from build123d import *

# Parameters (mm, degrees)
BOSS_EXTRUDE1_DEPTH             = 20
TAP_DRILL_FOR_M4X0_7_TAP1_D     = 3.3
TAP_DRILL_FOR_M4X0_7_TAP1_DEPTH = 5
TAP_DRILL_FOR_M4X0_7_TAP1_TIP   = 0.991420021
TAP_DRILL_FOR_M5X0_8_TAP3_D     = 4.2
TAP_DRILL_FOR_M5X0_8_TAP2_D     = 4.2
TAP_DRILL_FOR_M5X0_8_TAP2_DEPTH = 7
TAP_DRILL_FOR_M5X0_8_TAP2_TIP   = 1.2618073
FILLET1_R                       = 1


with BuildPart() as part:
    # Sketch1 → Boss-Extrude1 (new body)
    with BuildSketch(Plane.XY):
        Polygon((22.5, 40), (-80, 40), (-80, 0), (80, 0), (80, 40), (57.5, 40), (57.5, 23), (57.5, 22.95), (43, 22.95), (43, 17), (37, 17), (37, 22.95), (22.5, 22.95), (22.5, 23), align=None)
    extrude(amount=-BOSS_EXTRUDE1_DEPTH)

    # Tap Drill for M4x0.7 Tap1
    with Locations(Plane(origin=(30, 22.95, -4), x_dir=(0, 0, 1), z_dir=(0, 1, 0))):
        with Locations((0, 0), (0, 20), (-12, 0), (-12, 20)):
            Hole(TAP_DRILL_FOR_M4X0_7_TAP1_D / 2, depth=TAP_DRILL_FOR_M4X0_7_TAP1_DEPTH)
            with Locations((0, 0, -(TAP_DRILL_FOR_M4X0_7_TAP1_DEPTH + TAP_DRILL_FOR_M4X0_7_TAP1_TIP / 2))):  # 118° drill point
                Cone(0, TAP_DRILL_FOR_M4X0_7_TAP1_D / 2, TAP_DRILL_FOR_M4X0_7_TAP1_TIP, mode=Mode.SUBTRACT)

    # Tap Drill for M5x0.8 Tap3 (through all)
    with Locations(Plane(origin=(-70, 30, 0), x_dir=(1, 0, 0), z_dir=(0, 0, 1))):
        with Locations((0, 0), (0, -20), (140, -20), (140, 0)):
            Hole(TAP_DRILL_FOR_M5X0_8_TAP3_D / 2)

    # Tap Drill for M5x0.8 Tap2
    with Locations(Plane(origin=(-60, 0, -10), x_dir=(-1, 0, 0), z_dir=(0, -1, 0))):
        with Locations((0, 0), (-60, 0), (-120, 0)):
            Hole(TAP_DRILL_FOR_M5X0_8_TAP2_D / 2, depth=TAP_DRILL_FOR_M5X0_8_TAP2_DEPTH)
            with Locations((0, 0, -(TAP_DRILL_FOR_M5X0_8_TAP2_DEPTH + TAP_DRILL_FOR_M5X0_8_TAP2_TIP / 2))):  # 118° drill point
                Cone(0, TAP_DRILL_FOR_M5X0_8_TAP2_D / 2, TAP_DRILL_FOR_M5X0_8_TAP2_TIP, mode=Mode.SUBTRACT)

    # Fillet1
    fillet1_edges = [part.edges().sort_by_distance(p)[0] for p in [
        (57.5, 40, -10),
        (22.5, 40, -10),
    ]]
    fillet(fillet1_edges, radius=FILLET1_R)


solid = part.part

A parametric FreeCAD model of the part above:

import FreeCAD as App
import Part
import Sketcher


def edges_at(feature, points):
    """Names of the edges that pass closest to the given points."""
    edges = feature.Shape.Edges
    near = lambda p: min(range(len(edges)), key=lambda i: edges[i].distToShape(Part.Vertex(*p))[0])
    return sorted({f"Edge{near(p) + 1}" for p in points})


def add_polygon(sketch, points):
    """Adds a closed chain of lines whose ends are joined by coincident constraints."""
    first, n = sketch.GeometryCount, len(points)
    for a, b in zip(points, points[1:] + points[:1]):
        sketch.addGeometry(Part.LineSegment(App.Vector(*a, 0), App.Vector(*b, 0)), False)
    for i in range(n):
        sketch.addConstraint(Sketcher.Constraint("Coincident", first + i, 2, first + (i + 1) % n, 1))

doc = App.newDocument("Part")
params = doc.addObject("Spreadsheet::Sheet", "Params")
for row, (alias, value) in enumerate([
    ("sketch1_width", "160 mm"),
    ("sketch1_width2", "6 mm"),
    ("sketch1_height", "40 mm"),
    ("sketch1_width3", "102.5 mm"),
    ("sketch1_width4", "22.5 mm"),
    ("pad1_length", "20 mm"),
    ("sketch2_diameter", "3.3 mm"),
    ("hole_diameter", "3.3 mm"),
    ("hole_depth", "5 mm"),
    ("sketch3_diameter", "4.2 mm"),
    ("hole2_diameter", "4.2 mm"),
    ("sketch4_diameter", "4.2 mm"),
    ("hole3_diameter", "4.2 mm"),
    ("hole3_depth", "7 mm"),
    ("fillet_radius", "1 mm"),
], start=1):
    params.set(f"A{row}", alias)
    params.set(f"B{row}", "=" + value)
    params.setAlias(f"B{row}", alias)

body = doc.addObject("PartDesign::Body", "Body")

sketch1 = body.newObject("Sketcher::SketchObject", "Sketch")
sketch1.AttachmentSupport = (doc.getObject("XY_Plane"), [""])
sketch1.MapMode = "FlatFace"
add_polygon(sketch1, [(22, 40), (-80, 40), (-80, 0), (80, 0), (80, 40), (58, 40), (58, 23), (43, 23), (43, 17), (37, 17), (37, 23), (22, 23)])
sketch1.addConstraint(Sketcher.Constraint("Horizontal", 0))
sketch1.addConstraint(Sketcher.Constraint("Vertical", 1))
sketch1.addConstraint(Sketcher.Constraint("Horizontal", 2))
sketch1.addConstraint(Sketcher.Constraint("Vertical", 3))
sketch1.addConstraint(Sketcher.Constraint("Horizontal", 4))
sketch1.addConstraint(Sketcher.Constraint("Vertical", 5))
sketch1.addConstraint(Sketcher.Constraint("Horizontal", 6))
sketch1.addConstraint(Sketcher.Constraint("Vertical", 7))
sketch1.addConstraint(Sketcher.Constraint("Horizontal", 8))
sketch1.addConstraint(Sketcher.Constraint("Vertical", 9))
sketch1.addConstraint(Sketcher.Constraint("Horizontal", 10))
sketch1.addConstraint(Sketcher.Constraint("Vertical", 11))
sketch1.addConstraint(Sketcher.Constraint("Symmetric", 1, 2, 2, 2, -1, 1))
sketch1.addConstraint(Sketcher.Constraint("Horizontal", 0, 2, 3, 2))
sketch1.addConstraint(Sketcher.Constraint("Horizontal", 6, 2, 9, 2))
sketch1.addConstraint(Sketcher.Constraint("Equal", 6, 10))
sketch1.addConstraint(Sketcher.Constraint("DistanceX", 2, 1, 2, 2, 160.0))
sketch1.addConstraint(Sketcher.Constraint("DistanceX", 8, 2, 8, 1, 6.0))
sketch1.addConstraint(Sketcher.Constraint("DistanceY", 1, 2, 1, 1, 40.0))
sketch1.addConstraint(Sketcher.Constraint("DistanceX", 0, 2, 0, 1, 102.5))
sketch1.addConstraint(Sketcher.Constraint("DistanceX", 4, 2, 4, 1, 22.5))
sketch1.addConstraint(Sketcher.Constraint("DistanceY", -1, 1, 7, 2, 17.0))
sketch1.addConstraint(Sketcher.Constraint("DistanceY", 5, 2, 5, 1, 17.05))
sketch1.setExpression("Constraints[28]", "Params.sketch1_width")
sketch1.setExpression("Constraints[29]", "Params.sketch1_width2")
sketch1.setExpression("Constraints[30]", "Params.sketch1_height")
sketch1.setExpression("Constraints[31]", "Params.sketch1_width3")
sketch1.setExpression("Constraints[32]", "Params.sketch1_width4")
pad1 = body.newObject("PartDesign::Pad", "Pad")
pad1.Profile = sketch1
pad1.setExpression("Length", "Params.pad1_length")
pad1.Reversed = True

sketch2 = body.newObject("Sketcher::SketchObject", "Sketch001")
sketch2.AttachmentSupport = (doc.getObject("XZ_Plane"), [""])
sketch2.MapMode = "FlatFace"
sketch2.AttachmentOffset = App.Placement(App.Vector(0, 0, -22.95), App.Rotation())
sketch2.addGeometry(Part.Circle(App.Vector(30, -4, 0), App.Vector(0, 0, 1), 1.6), False)
sketch2.addGeometry(Part.Circle(App.Vector(50, -4, 0), App.Vector(0, 0, 1), 1.6), False)
sketch2.addGeometry(Part.Circle(App.Vector(30, -16, 0), App.Vector(0, 0, 1), 1.6), False)
sketch2.addGeometry(Part.Circle(App.Vector(50, -16, 0), App.Vector(0, 0, 1), 1.6), False)
sketch2.addConstraint(Sketcher.Constraint("Equal", 0, 1))
sketch2.addConstraint(Sketcher.Constraint("Equal", 1, 2))
sketch2.addConstraint(Sketcher.Constraint("Equal", 2, 3))
sketch2.addConstraint(Sketcher.Constraint("Horizontal", 0, 3, 1, 3))
sketch2.addConstraint(Sketcher.Constraint("Horizontal", 2, 3, 3, 3))
sketch2.addConstraint(Sketcher.Constraint("Vertical", 0, 3, 2, 3))
sketch2.addConstraint(Sketcher.Constraint("Vertical", 1, 3, 3, 3))
sketch2.addConstraint(Sketcher.Constraint("Diameter", 0, 3.3))
sketch2.addConstraint(Sketcher.Constraint("DistanceX", -1, 1, 0, 3, 30.0))
sketch2.addConstraint(Sketcher.Constraint("DistanceY", 0, 3, -1, 1, 4.0))
sketch2.addConstraint(Sketcher.Constraint("DistanceX", -1, 1, 1, 3, 50.0))
sketch2.addConstraint(Sketcher.Constraint("DistanceY", 2, 3, -1, 1, 16.0))
sketch2.setExpression("Constraints[7]", "Params.sketch2_diameter")
doc.recompute()
hole = body.newObject("PartDesign::Hole", "Hole")
hole.Profile = sketch2
hole.ThreadType = "None"
hole.setExpression("Diameter", "Params.hole_diameter")
hole.DepthType = "Dimension"
hole.setExpression("Depth", "Params.hole_depth")
hole.DrillPoint = "Angled"
hole.DrillPointAngle = 118
hole.Reversed = True

sketch3 = body.newObject("Sketcher::SketchObject", "Sketch002")
sketch3.AttachmentSupport = (doc.getObject("XY_Plane"), [""])
sketch3.MapMode = "FlatFace"
sketch3.addGeometry(Part.Circle(App.Vector(-70, 30, 0), App.Vector(0, 0, 1), 2.1), False)
sketch3.addGeometry(Part.Circle(App.Vector(-70, 10, 0), App.Vector(0, 0, 1), 2.1), False)
sketch3.addGeometry(Part.Circle(App.Vector(70, 10, 0), App.Vector(0, 0, 1), 2.1), False)
sketch3.addGeometry(Part.Circle(App.Vector(70, 30, 0), App.Vector(0, 0, 1), 2.1), False)
sketch3.addConstraint(Sketcher.Constraint("Equal", 0, 1))
sketch3.addConstraint(Sketcher.Constraint("Equal", 1, 2))
sketch3.addConstraint(Sketcher.Constraint("Equal", 2, 3))
sketch3.addConstraint(Sketcher.Constraint("Symmetric", 1, 3, 2, 3, -2))
sketch3.addConstraint(Sketcher.Constraint("Symmetric", 0, 3, 3, 3, -2))
sketch3.addConstraint(Sketcher.Constraint("Vertical", 0, 3, 1, 3))
sketch3.addConstraint(Sketcher.Constraint("Diameter", 0, 4.2))
sketch3.addConstraint(Sketcher.Constraint("DistanceX", 0, 3, -1, 1, 70.0))
sketch3.addConstraint(Sketcher.Constraint("DistanceY", -1, 1, 0, 3, 30.0))
sketch3.addConstraint(Sketcher.Constraint("DistanceY", -1, 1, 1, 3, 10.0))
sketch3.setExpression("Constraints[6]", "Params.sketch3_diameter")
doc.recompute()
hole2 = body.newObject("PartDesign::Hole", "Hole001")
hole2.Profile = sketch3
hole2.ThreadType = "None"
hole2.setExpression("Diameter", "Params.hole2_diameter")
hole2.DepthType = "ThroughAll"

sketch4 = body.newObject("Sketcher::SketchObject", "Sketch003")
sketch4.AttachmentSupport = (doc.getObject("XZ_Plane"), [""])
sketch4.MapMode = "FlatFace"
sketch4.addGeometry(Part.Circle(App.Vector(-60, -10, 0), App.Vector(0, 0, 1), 2.1), False)
sketch4.addGeometry(Part.Circle(App.Vector(0, -10, 0), App.Vector(0, 0, 1), 2.1), False)
sketch4.addGeometry(Part.Circle(App.Vector(60, -10, 0), App.Vector(0, 0, 1), 2.1), False)
sketch4.addConstraint(Sketcher.Constraint("Equal", 0, 1))
sketch4.addConstraint(Sketcher.Constraint("Equal", 1, 2))
sketch4.addConstraint(Sketcher.Constraint("Symmetric", 0, 3, 2, 3, -2))
sketch4.addConstraint(Sketcher.Constraint("PointOnObject", 1, 3, -2))
sketch4.addConstraint(Sketcher.Constraint("Horizontal", 0, 3, 1, 3))
sketch4.addConstraint(Sketcher.Constraint("Diameter", 0, 4.2))
sketch4.addConstraint(Sketcher.Constraint("DistanceX", 0, 3, -1, 1, 60.0))
sketch4.addConstraint(Sketcher.Constraint("DistanceY", 0, 3, -1, 1, 10.0))
sketch4.setExpression("Constraints[5]", "Params.sketch4_diameter")
doc.recompute()
hole3 = body.newObject("PartDesign::Hole", "Hole002")
hole3.Profile = sketch4
hole3.ThreadType = "None"
hole3.setExpression("Diameter", "Params.hole3_diameter")
hole3.DepthType = "Dimension"
hole3.setExpression("Depth", "Params.hole3_depth")
hole3.DrillPoint = "Angled"
hole3.DrillPointAngle = 118
doc.recompute()

fillet = body.newObject("PartDesign::Fillet", "Fillet")
fillet.Base = (hole3, edges_at(hole3, [(57.5, 40, -10), (22.5, 40, -10)]))
fillet.setExpression("Radius", "Params.fillet_radius")

doc.recompute()
